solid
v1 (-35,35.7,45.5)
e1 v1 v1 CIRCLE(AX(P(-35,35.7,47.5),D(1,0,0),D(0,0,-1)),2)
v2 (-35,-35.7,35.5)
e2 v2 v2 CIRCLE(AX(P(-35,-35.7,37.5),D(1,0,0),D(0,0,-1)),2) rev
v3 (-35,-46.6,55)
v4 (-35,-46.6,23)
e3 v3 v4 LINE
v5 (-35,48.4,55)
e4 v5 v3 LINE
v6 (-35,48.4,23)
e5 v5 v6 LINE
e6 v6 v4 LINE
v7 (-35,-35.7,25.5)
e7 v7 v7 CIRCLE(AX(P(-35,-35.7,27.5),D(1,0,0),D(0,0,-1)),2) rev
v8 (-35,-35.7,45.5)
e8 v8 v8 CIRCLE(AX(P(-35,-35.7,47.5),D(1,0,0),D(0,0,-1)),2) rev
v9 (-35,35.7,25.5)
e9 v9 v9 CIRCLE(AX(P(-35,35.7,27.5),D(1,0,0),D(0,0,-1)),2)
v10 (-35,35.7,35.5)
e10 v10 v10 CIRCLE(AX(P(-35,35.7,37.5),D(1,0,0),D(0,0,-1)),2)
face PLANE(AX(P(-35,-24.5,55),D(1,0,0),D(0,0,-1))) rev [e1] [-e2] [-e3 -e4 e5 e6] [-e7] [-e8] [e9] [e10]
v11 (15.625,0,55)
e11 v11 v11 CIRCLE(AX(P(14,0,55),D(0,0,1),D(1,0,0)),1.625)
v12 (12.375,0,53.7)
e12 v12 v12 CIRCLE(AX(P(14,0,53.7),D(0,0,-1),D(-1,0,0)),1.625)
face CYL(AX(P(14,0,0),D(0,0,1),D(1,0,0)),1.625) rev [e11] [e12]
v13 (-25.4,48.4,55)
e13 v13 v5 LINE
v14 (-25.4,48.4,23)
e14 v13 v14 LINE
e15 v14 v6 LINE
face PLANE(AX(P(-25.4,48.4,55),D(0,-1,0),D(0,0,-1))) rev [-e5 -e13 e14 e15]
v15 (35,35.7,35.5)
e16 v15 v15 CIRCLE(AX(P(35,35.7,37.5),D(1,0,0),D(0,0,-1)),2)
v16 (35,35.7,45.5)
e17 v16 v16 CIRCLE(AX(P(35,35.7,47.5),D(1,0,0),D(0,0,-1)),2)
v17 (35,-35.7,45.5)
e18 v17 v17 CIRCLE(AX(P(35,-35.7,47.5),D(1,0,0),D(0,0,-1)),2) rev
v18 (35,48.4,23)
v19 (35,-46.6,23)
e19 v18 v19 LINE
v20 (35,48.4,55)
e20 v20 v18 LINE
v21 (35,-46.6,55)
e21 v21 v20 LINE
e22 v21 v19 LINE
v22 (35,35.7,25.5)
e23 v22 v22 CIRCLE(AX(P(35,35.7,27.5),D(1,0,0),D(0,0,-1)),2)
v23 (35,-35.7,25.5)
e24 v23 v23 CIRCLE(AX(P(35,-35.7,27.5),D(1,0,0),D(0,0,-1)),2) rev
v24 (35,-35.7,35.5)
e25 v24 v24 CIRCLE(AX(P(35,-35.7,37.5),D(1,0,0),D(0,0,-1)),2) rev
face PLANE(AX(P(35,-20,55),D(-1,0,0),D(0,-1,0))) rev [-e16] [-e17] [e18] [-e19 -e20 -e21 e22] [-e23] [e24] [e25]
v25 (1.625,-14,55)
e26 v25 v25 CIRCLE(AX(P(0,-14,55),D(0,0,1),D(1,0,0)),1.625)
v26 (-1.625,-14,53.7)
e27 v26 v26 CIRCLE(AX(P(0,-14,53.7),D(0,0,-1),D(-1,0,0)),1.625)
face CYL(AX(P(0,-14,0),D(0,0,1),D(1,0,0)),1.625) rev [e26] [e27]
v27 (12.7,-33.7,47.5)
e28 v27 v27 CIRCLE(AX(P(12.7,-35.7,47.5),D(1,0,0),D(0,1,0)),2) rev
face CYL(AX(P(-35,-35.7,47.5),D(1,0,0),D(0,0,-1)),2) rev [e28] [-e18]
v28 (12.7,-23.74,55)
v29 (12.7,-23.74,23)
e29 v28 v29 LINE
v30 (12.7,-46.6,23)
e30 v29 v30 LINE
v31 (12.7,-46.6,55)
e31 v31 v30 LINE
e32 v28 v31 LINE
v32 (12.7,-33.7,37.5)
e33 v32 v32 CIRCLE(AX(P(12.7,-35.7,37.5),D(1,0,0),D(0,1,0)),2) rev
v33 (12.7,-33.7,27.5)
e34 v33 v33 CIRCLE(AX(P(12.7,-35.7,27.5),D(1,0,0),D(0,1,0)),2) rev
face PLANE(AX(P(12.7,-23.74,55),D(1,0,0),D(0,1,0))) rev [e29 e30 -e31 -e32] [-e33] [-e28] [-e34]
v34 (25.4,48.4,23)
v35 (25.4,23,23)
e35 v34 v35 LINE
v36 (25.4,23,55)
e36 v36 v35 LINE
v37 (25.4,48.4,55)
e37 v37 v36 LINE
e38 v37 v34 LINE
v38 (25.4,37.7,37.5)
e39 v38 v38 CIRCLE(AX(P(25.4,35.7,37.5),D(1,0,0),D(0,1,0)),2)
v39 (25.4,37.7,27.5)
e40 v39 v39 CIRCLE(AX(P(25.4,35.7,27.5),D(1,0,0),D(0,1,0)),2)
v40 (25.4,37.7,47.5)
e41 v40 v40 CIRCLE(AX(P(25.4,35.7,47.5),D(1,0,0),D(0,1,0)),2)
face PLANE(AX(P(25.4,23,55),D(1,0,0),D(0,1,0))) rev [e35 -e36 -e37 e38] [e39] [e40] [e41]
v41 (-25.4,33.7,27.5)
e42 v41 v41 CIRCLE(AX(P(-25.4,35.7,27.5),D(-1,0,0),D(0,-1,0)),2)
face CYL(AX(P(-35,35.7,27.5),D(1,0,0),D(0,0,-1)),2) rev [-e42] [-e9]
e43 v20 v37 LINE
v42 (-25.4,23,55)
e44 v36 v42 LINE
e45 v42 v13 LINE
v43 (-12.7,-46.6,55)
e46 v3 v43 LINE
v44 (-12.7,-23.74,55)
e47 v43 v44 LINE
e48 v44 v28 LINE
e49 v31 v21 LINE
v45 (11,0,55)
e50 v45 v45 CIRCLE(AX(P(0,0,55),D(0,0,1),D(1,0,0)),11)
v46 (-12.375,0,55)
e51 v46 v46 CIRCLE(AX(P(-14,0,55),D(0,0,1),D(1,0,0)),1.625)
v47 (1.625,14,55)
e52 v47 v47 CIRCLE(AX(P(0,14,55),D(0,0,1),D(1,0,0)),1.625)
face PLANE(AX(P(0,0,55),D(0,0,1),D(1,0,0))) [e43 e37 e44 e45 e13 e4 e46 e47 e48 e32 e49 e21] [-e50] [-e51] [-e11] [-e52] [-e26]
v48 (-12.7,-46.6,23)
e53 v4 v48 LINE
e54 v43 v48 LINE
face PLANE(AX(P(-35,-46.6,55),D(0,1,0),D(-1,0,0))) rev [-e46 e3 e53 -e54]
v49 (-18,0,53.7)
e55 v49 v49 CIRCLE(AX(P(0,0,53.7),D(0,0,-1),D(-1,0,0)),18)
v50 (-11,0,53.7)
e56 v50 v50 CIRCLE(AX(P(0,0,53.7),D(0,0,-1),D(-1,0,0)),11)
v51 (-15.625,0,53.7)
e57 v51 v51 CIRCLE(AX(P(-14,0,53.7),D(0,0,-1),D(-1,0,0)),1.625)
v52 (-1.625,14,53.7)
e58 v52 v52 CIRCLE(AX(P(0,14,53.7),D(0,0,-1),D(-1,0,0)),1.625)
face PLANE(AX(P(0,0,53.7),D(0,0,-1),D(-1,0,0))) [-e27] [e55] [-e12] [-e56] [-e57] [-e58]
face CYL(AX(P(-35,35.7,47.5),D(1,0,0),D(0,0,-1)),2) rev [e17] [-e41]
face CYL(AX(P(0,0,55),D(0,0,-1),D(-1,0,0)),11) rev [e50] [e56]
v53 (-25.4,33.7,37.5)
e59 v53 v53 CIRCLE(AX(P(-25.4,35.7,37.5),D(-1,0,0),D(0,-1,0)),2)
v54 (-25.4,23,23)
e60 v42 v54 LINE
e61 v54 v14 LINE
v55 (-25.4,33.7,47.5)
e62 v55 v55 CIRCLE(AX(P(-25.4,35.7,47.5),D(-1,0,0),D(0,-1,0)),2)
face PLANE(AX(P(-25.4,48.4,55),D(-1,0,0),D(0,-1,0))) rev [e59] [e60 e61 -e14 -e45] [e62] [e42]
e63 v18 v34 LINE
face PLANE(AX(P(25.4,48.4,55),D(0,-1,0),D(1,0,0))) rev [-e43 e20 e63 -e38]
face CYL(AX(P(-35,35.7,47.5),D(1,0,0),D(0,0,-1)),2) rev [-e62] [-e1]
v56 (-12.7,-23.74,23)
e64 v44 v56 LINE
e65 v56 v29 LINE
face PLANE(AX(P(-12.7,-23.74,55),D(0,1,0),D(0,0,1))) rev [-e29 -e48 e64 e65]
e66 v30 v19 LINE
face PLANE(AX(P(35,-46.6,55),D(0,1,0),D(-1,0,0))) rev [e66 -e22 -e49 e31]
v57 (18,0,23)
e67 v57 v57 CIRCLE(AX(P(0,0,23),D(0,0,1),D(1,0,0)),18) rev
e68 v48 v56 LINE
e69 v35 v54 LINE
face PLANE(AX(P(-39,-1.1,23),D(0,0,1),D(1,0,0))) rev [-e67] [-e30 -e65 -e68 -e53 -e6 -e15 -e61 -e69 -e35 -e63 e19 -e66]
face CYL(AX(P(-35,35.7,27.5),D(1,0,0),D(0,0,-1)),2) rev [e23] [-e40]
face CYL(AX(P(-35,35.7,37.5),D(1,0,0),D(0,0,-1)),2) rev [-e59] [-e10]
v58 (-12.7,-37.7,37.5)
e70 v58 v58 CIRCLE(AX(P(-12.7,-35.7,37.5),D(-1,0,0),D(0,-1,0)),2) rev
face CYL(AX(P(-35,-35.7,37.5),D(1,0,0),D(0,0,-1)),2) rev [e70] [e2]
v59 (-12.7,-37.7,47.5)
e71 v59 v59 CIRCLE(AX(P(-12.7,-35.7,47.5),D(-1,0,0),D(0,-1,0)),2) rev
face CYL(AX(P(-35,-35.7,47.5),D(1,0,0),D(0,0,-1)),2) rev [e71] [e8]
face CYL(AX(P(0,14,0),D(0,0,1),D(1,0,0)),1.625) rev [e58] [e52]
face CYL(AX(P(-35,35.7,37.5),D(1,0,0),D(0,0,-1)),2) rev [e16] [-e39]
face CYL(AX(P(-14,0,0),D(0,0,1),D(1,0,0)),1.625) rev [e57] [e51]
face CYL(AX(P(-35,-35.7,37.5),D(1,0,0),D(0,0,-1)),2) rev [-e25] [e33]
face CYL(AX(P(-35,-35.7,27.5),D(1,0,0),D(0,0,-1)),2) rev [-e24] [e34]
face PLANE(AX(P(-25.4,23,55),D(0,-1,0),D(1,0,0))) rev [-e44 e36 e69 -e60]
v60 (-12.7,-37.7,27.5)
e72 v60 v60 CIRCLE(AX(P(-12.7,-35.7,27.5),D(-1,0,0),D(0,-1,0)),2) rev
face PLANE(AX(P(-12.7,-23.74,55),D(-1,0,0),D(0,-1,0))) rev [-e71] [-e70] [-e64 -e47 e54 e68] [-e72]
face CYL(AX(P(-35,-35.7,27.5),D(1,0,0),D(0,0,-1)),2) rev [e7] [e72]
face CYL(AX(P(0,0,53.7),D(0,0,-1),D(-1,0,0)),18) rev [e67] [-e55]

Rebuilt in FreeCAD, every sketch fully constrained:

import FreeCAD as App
import Part
import Sketcher
from FreeCAD import Vector
Q = App.Units.Quantity

doc = App.newDocument("Part")
body = doc.addObject("PartDesign::Body", "Body")

sketch1 = body.newObject("Sketcher::SketchObject", "Sketch")
sketch1.AttachmentSupport = (doc.getObject("XY_Plane"), [""])
sketch1.MapMode = "FlatFace"
sketch1.addGeometry(Part.LineSegment(Vector(-13, -24, 0), Vector(13, -24, 0)), False)
sketch1.addGeometry(Part.LineSegment(Vector(13, -24, 0), Vector(13, -47, 0)), False)
sketch1.addGeometry(Part.LineSegment(Vector(13, -47, 0), Vector(35, -47, 0)), False)
sketch1.addGeometry(Part.LineSegment(Vector(35, -47, 0), Vector(35, 48, 0)), False)
sketch1.addGeometry(Part.LineSegment(Vector(35, 48, 0), Vector(25, 48, 0)), False)
sketch1.addGeometry(Part.LineSegment(Vector(25, 48, 0), Vector(25, 23, 0)), False)
sketch1.addGeometry(Part.LineSegment(Vector(25, 23, 0), Vector(-25, 23, 0)), False)
sketch1.addGeometry(Part.LineSegment(Vector(-25, 23, 0), Vector(-25, 48, 0)), False)
sketch1.addGeometry(Part.LineSegment(Vector(-25, 48, 0), Vector(-35, 48, 0)), False)
sketch1.addGeometry(Part.LineSegment(Vector(-35, 48, 0), Vector(-35, -47, 0)), False)
sketch1.addGeometry(Part.LineSegment(Vector(-35, -47, 0), Vector(-13, -47, 0)), False)
sketch1.addGeometry(Part.LineSegment(Vector(-13, -47, 0), Vector(-13, -24, 0)), False)
sketch1.addGeometry(Part.Circle(Vector(0, 0, 0), Vector(0, 0, 1), 11), False)
sketch1.addConstraint(Sketcher.Constraint("Coincident", 0, 2, 1, 1))
sketch1.addConstraint(Sketcher.Constraint("Coincident", 1, 2, 2, 1))
sketch1.addConstraint(Sketcher.Constraint("Coincident", 2, 2, 3, 1))
sketch1.addConstraint(Sketcher.Constraint("Coincident", 3, 2, 4, 1))
sketch1.addConstraint(Sketcher.Constraint("Coincident", 4, 2, 5, 1))
sketch1.addConstraint(Sketcher.Constraint("Coincident", 5, 2, 6, 1))
sketch1.addConstraint(Sketcher.Constraint("Coincident", 6, 2, 7, 1))
sketch1.addConstraint(Sketcher.Constraint("Coincident", 7, 2, 8, 1))
sketch1.addConstraint(Sketcher.Constraint("Coincident", 8, 2, 9, 1))
sketch1.addConstraint(Sketcher.Constraint("Coincident", 9, 2, 10, 1))
sketch1.addConstraint(Sketcher.Constraint("Coincident", 10, 2, 11, 1))
sketch1.addConstraint(Sketcher.Constraint("Coincident", 11, 2, 0, 1))
sketch1.addConstraint(Sketcher.Constraint("Horizontal", 0))
sketch1.addConstraint(Sketcher.Constraint("Vertical", 1))
sketch1.addConstraint(Sketcher.Constraint("Horizontal", 2))
sketch1.addConstraint(Sketcher.Constraint("Vertical", 3))
sketch1.addConstraint(Sketcher.Constraint("Horizontal", 4))
sketch1.addConstraint(Sketcher.Constraint("Vertical", 5))
sketch1.addConstraint(Sketcher.Constraint("Horizontal", 6))
sketch1.addConstraint(Sketcher.Constraint("Vertical", 7))
sketch1.addConstraint(Sketcher.Constraint("Horizontal", 8))
sketch1.addConstraint(Sketcher.Constraint("Vertical", 9))
sketch1.addConstraint(Sketcher.Constraint("Horizontal", 10))
sketch1.addConstraint(Sketcher.Constraint("Vertical", 11))
sketch1.addConstraint(Sketcher.Constraint("Coincident", 12, 3, -1, 1))
sketch1.addConstraint(Sketcher.Constraint("Symmetric", 4, 2, 7, 2, -2))
sketch1.addConstraint(Sketcher.Constraint("Symmetric", 2, 2, 9, 2, -2))
sketch1.addConstraint(Sketcher.Constraint("Equal", 2, 10))
sketch1.addConstraint(Sketcher.Constraint("Equal", 0, 5))
sketch1.addConstraint(Sketcher.Constraint("Diameter", 12, Q("22 mm")))
sketch1.addConstraint(Sketcher.Constraint("DistanceY", 3, 1, 3, 2, Q("95 mm")))
sketch1.addConstraint(Sketcher.Constraint("DistanceX", 0, 1, 0, 2, Q("25.4 mm")))
sketch1.addConstraint(Sketcher.Constraint("DistanceX", 2, 1, 2, 2, Q("22.3 mm")))
sketch1.addConstraint(Sketcher.Constraint("DistanceX", 4, 2, 4, 1, Q("9.6 mm")))
sketch1.addConstraint(Sketcher.Constraint("DistanceY", -1, 1, 5, 2, Q("23 mm")))
sketch1.addConstraint(Sketcher.Constraint("DistanceY", 1, 2, 1, 1, Q("22.86 mm")))
pad1 = body.newObject("PartDesign::Pad", "Pad")
pad1.Profile = sketch1
pad1.Length = 55

sketch2 = body.newObject("Sketcher::SketchObject", "Sketch001")
sketch2.AttachmentSupport = (doc.getObject("XY_Plane"), [""])
sketch2.MapMode = "FlatFace"
sketch2.addGeometry(Part.Circle(Vector(0, 0, 0), Vector(0, 0, 1), 18), False)
sketch2.addConstraint(Sketcher.Constraint("Coincident", 0, 3, -1, 1))
sketch2.addConstraint(Sketcher.Constraint("Diameter", 0, Q("36 mm")))
pocket1 = body.newObject("PartDesign::Pocket", "Pocket")
pocket1.Profile = sketch2
pocket1.Length = 53.7
pocket1.Reversed = True

sketch3 = body.newObject("Sketcher::SketchObject", "Sketch002")
sketch3.AttachmentSupport = (doc.getObject("XY_Plane"), [""])
sketch3.MapMode = "FlatFace"
sketch3.AttachmentOffset = App.Placement(Vector(0, 0, 55), App.Rotation())
sketch3.addGeometry(Part.Circle(Vector(0, 14, 0), Vector(0, 0, 1), 1.6), False)
sketch3.addGeometry(Part.Circle(Vector(14, 0, 0), Vector(0, 0, 1), 1.6), False)
sketch3.addGeometry(Part.Circle(Vector(0, -14, 0), Vector(0, 0, 1), 1.6), False)
sketch3.addGeometry(Part.Circle(Vector(-14, 0, 0), Vector(0, 0, 1), 1.6), False)
sketch3.addConstraint(Sketcher.Constraint("Equal", 0, 1))
sketch3.addConstraint(Sketcher.Constraint("Equal", 1, 2))
sketch3.addConstraint(Sketcher.Constraint("Equal", 2, 3))
sketch3.addConstraint(Sketcher.Constraint("Symmetric", 0, 3, 2, 3, -1, 1))
sketch3.addConstraint(Sketcher.Constraint("Symmetric", 1, 3, 3, 3, -1, 1))
sketch3.addConstraint(Sketcher.Constraint("PointOnObject", 0, 3, -2))
sketch3.addConstraint(Sketcher.Constraint("PointOnObject", 1, 3, -1))
sketch3.addConstraint(Sketcher.Constraint("Diameter", 0, Q("3.25 mm")))
sketch3.addConstraint(Sketcher.Constraint("DistanceY", -1, 1, 0, 3, Q("14 mm")))
sketch3.addConstraint(Sketcher.Constraint("DistanceX", -1, 1, 1, 3, Q("14 mm")))
pocket2 = body.newObject("PartDesign::Pocket", "Pocket001")
pocket2.Profile = sketch3
pocket2.Type = "ThroughAll"

sketch4 = body.newObject("Sketcher::SketchObject", "Sketch003")
sketch4.AttachmentSupport = (doc.getObject("YZ_Plane"), [""])
sketch4.MapMode = "FlatFace"
sketch4.addGeometry(Part.Circle(Vector(-35.7, 27.5, 0), Vector(0, 0, 1), 2), False)
sketch4.addGeometry(Part.Circle(Vector(-35.7, 17.5, 0), Vector(0, 0, 1), 2), False)
sketch4.addGeometry(Part.Circle(Vector(-35.7, 7.5, 0), Vector(0, 0, 1), 2), False)
sketch4.addGeometry(Part.Circle(Vector(-35.7, 37.5, 0), Vector(0, 0, 1), 2), False)
sketch4.addGeometry(Part.Circle(Vector(-35.7, 47.5, 0), Vector(0, 0, 1), 2), False)
sketch4.addGeometry(Part.Circle(Vector(35.7, 27.5, 0), Vector(0, 0, 1), 2), False)
sketch4.addGeometry(Part.Circle(Vector(35.7, 37.5, 0), Vector(0, 0, 1), 2), False)
sketch4.addGeometry(Part.Circle(Vector(35.7, 47.5, 0), Vector(0, 0, 1), 2), False)
sketch4.addGeometry(Part.Circle(Vector(35.7, 17.5, 0), Vector(0, 0, 1), 2), False)
sketch4.addGeometry(Part.Circle(Vector(35.7, 7.5, 0), Vector(0, 0, 1), 2), False)
sketch4.addConstraint(Sketcher.Constraint("Equal", 0, 1))
sketch4.addConstraint(Sketcher.Constraint("Equal", 1, 2))
sketch4.addConstraint(Sketcher.Constraint("Equal", 2, 3))
sketch4.addConstraint(Sketcher.Constraint("Equal", 3, 4))
sketch4.addConstraint(Sketcher.Constraint("Equal", 4, 5))
sketch4.addConstraint(Sketcher.Constraint("Equal", 5, 6))
sketch4.addConstraint(Sketcher.Constraint("Equal", 6, 7))
sketch4.addConstraint(Sketcher.Constraint("Equal", 7, 8))
sketch4.addConstraint(Sketcher.Constraint("Equal", 8, 9))
sketch4.addConstraint(Sketcher.Constraint("Symmetric", 0, 3, 5, 3, -2))
sketch4.addConstraint(Sketcher.Constraint("Symmetric", 3, 3, 6, 3, -2))
sketch4.addConstraint(Sketcher.Constraint("Symmetric", 4, 3, 7, 3, -2))
sketch4.addConstraint(Sketcher.Constraint("Symmetric", 1, 3, 8, 3, -2))
sketch4.addConstraint(Sketcher.Constraint("Symmetric", 2, 3, 9, 3, -2))
sketch4.addConstraint(Sketcher.Constraint("Vertical", 0, 3, 1, 3))
sketch4.addConstraint(Sketcher.Constraint("Vertical", 1, 3, 2, 3))
sketch4.addConstraint(Sketcher.Constraint("Vertical", 2, 3, 3, 3))
sketch4.addConstraint(Sketcher.Constraint("Vertical", 3, 3, 4, 3))
sketch4.addConstraint(Sketcher.Constraint("Diameter", 0, Q("4 mm")))
sketch4.addConstraint(Sketcher.Constraint("DistanceY", 1, 3, 0, 3, Q("10 mm")))
sketch4.addConstraint(Sketcher.Constraint("DistanceY", 2, 3, 1, 3, Q("10 mm")))
sketch4.addConstraint(Sketcher.Constraint("DistanceY", 0, 3, 3, 3, Q("10 mm")))
sketch4.addConstraint(Sketcher.Constraint("DistanceY", 3, 3, 4, 3, Q("10 mm")))
sketch4.addConstraint(Sketcher.Constraint("DistanceX", 0, 3, -1, 1, Q("35.7 mm")))
sketch4.addConstraint(Sketcher.Constraint("DistanceY", -1, 1, 0, 3, Q("27.5 mm")))
pocket3 = body.newObject("PartDesign::Pocket", "Pocket002")
pocket3.Profile = sketch4
pocket3.Type = "ThroughAll"
pocket3.Midplane = True

sketch5 = body.newObject("Sketcher::SketchObject", "Sketch004")
sketch5.AttachmentSupport = (doc.getObject("YZ_Plane"), [""])
sketch5.MapMode = "FlatFace"
sketch5.AttachmentOffset = App.Placement(Vector(0, 0, 35), App.Rotation())
sketch5.addGeometry(Part.LineSegment(Vector(51, 23, 0), Vector(-57, 23, 0)), False)
sketch5.addGeometry(Part.LineSegment(Vector(-57, 23, 0), Vector(-57, -27, 0)), False)
sketch5.addGeometry(Part.LineSegment(Vector(-57, -27, 0), Vector(51, -27, 0)), False)
sketch5.addGeometry(Part.LineSegment(Vector(51, -27, 0), Vector(51, 23, 0)), False)
sketch5.addConstraint(Sketcher.Constraint("Coincident", 0, 2, 1, 1))
sketch5.addConstraint(Sketcher.Constraint("Coincident", 1, 2, 2, 1))
sketch5.addConstraint(Sketcher.Constraint("Coincident", 2, 2, 3, 1))
sketch5.addConstraint(Sketcher.Constraint("Coincident", 3, 2, 0, 1))
sketch5.addConstraint(Sketcher.Constraint("Horizontal", 0))
sketch5.addConstraint(Sketcher.Constraint("Vertical", 1))
sketch5.addConstraint(Sketcher.Constraint("Horizontal", 2))
sketch5.addConstraint(Sketcher.Constraint("Vertical", 3))
sketch5.addConstraint(Sketcher.Constraint("DistanceY", -1, 1, 0, 2, Q("23 mm")))
sketch5.addConstraint(Sketcher.Constraint("DistanceX", 0, 2, 0, 1, Q("108.27992 mm")))
sketch5.addConstraint(Sketcher.Constraint("DistanceY", 1, 2, 1, 1, Q("49.63996 mm")))
sketch5.addConstraint(Sketcher.Constraint("DistanceX", 0, 2, -1, 1, Q("56.994127 mm")))
pocket4 = body.newObject("PartDesign::Pocket", "Pocket003")
pocket4.Profile = sketch5
pocket4.Length = 74

doc.recompute()
